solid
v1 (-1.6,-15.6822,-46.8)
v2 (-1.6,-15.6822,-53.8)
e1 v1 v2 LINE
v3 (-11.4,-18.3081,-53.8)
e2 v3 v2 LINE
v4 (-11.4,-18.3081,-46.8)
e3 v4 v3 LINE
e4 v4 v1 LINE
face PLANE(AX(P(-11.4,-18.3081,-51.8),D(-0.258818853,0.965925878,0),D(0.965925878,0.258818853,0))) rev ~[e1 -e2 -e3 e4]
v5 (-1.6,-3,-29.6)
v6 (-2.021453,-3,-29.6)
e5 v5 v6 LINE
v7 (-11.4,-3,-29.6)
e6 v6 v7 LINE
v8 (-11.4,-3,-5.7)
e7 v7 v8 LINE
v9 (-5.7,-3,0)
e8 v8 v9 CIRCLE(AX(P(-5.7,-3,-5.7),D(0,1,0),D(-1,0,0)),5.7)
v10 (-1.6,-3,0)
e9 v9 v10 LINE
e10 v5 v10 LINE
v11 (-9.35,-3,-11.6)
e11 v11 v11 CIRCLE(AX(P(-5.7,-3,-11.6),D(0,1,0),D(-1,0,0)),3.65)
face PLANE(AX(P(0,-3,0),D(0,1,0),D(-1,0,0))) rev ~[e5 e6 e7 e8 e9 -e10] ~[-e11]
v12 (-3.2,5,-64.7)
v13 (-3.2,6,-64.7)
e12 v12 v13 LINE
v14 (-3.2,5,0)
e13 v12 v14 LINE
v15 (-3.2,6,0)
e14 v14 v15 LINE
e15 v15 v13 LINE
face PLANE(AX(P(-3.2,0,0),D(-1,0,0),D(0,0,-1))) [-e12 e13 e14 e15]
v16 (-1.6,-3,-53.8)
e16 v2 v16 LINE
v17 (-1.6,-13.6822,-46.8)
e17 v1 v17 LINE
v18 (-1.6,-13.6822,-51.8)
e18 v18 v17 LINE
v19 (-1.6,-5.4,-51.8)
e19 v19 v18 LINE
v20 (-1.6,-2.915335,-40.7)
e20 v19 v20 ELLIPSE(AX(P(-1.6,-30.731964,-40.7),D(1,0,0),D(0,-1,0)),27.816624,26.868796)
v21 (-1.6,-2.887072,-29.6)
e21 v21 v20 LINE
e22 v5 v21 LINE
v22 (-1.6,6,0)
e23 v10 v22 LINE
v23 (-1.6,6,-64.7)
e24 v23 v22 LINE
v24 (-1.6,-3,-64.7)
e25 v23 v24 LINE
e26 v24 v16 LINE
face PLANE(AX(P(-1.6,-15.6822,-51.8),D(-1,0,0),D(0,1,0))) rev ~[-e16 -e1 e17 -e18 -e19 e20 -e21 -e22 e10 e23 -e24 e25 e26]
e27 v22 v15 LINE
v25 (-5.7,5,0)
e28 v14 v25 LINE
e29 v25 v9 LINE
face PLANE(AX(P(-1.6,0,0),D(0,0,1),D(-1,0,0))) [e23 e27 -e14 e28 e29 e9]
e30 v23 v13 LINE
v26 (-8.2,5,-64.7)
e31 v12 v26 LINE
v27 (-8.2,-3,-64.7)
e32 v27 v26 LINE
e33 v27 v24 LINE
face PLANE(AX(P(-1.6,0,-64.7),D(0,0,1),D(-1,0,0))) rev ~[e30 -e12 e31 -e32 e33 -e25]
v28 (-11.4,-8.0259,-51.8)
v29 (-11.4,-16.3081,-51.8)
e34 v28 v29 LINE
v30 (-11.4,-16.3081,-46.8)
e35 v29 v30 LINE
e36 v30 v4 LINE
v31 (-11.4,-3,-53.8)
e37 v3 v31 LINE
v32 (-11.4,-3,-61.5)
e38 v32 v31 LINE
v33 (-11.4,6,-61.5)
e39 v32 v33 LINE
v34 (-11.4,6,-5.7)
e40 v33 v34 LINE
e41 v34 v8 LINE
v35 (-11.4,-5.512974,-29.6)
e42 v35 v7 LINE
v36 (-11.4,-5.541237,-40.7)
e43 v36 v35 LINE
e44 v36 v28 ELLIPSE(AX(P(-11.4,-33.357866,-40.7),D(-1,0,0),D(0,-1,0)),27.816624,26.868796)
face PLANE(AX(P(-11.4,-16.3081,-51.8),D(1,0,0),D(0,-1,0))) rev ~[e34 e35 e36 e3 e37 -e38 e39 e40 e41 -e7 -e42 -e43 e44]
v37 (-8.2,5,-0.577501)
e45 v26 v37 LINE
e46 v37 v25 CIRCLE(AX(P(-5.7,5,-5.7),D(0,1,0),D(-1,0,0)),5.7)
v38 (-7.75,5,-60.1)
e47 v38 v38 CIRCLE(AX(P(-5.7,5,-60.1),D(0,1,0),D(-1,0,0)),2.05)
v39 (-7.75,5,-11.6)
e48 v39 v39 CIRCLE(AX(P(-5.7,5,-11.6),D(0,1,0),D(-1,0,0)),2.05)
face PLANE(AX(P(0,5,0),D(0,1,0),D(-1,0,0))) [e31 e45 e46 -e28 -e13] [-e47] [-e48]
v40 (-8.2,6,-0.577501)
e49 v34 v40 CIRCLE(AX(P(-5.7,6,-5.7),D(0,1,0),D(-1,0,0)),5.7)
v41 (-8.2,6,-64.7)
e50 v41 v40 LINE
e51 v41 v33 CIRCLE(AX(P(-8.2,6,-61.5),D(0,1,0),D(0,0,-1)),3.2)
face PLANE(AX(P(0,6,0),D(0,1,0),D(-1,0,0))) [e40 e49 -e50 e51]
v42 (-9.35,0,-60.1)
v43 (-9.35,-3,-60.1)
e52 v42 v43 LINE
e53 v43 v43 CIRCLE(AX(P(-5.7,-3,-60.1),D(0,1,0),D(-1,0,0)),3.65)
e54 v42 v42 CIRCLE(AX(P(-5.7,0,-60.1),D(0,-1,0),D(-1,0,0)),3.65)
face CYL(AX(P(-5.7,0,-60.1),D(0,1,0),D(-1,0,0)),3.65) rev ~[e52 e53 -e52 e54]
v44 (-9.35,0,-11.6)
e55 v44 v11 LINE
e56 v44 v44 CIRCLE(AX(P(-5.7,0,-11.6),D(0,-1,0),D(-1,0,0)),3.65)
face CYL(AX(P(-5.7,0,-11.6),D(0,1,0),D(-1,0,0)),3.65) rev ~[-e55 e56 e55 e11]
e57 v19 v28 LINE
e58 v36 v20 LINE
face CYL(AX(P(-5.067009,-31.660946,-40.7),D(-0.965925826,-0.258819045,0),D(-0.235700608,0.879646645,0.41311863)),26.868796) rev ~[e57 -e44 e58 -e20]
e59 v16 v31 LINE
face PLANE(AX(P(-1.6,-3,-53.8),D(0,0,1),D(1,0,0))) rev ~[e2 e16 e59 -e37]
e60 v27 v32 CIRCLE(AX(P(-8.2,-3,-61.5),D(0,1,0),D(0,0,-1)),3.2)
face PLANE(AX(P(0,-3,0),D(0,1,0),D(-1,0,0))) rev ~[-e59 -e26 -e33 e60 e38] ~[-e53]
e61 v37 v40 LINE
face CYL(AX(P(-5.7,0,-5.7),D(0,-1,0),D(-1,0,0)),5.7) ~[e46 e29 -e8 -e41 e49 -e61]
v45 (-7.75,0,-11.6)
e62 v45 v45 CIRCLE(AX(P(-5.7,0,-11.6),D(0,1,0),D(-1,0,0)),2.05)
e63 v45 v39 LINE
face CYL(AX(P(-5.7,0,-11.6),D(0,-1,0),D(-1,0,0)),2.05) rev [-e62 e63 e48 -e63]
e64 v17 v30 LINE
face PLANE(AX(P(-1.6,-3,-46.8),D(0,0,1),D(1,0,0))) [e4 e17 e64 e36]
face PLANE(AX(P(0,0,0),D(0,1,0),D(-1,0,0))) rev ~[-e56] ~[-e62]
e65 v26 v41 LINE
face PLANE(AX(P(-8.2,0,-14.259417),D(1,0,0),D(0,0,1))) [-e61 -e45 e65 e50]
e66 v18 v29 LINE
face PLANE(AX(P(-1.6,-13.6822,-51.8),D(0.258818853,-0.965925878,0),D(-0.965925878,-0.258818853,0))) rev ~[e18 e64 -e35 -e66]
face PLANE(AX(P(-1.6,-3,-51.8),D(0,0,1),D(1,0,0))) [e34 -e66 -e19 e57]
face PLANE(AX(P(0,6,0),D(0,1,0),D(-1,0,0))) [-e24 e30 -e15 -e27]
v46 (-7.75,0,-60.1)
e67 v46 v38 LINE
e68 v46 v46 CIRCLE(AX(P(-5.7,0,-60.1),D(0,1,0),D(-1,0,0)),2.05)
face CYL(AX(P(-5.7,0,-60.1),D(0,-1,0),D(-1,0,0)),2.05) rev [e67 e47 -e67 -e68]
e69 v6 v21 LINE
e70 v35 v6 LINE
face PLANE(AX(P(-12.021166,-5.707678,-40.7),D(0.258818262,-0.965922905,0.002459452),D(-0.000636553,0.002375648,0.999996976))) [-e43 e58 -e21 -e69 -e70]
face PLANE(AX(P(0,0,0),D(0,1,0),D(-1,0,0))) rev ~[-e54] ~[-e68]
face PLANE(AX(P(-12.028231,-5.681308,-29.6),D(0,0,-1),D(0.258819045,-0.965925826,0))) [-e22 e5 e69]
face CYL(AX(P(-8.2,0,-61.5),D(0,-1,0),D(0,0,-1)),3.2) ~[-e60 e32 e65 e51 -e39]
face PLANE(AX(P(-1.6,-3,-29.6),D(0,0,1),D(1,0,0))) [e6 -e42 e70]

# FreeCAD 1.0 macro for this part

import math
import FreeCAD as App
import Part
import Sketcher
Q = App.Units.Quantity

doc = App.newDocument("Part")
body = doc.addObject("PartDesign::Body", "Body")
body.AllowCompound = True

# Sketch on XZ plane
sketch1 = doc.addObject("Sketcher::SketchObject", "Sketch")
body.addObject(sketch1)
sketch1.AttachmentSupport = (doc.XZ_Plane, [""])
sketch1.MapMode = "FlatFace"
sketch1.addGeometry(Part.LineSegment(App.Vector(-3.2, 0, 0), App.Vector(-1.6, 0, 0)), False)
sketch1.addGeometry(Part.LineSegment(App.Vector(-1.6, 0, 0), App.Vector(-1.6, -64.7, 0)), False)
sketch1.addGeometry(Part.LineSegment(App.Vector(-1.6, -64.7, 0), App.Vector(-3.2, -64.7, 0)), False)
sketch1.addGeometry(Part.LineSegment(App.Vector(-3.2, -64.7, 0), App.Vector(-3.2, 0, 0)), False)
sketch1.addGeometry(Part.ArcOfCircle(Part.Circle(App.Vector(-8.2, -61.5, 0), App.Vector(0, 0, 1), 3.2), math.radians(180), math.radians(270)), False)
sketch1.addGeometry(Part.LineSegment(App.Vector(-11.4, -61.5, 0), App.Vector(-11.4, -5.7, 0)), False)
sketch1.addGeometry(Part.ArcOfCircle(Part.Circle(App.Vector(-5.7, -5.7, 0), App.Vector(0, 0, 1), 5.7), math.radians(116), math.radians(180)), False)
sketch1.addGeometry(Part.LineSegment(App.Vector(-8.2, -0.6, 0), App.Vector(-8.2, -64.7, 0)), False)
sketch1.addConstraint(Sketcher.Constraint("Coincident", 0, 2, 1, 1))
sketch1.addConstraint(Sketcher.Constraint("Coincident", 1, 2, 2, 1))
sketch1.addConstraint(Sketcher.Constraint("Coincident", 2, 2, 3, 1))
sketch1.addConstraint(Sketcher.Constraint("Coincident", 3, 2, 0, 1))
sketch1.addConstraint(Sketcher.Constraint("Tangent", 4, 1, 5, 1))
sketch1.addConstraint(Sketcher.Constraint("Tangent", 5, 2, 6, 2))
sketch1.addConstraint(Sketcher.Constraint("Coincident", 6, 1, 7, 1))
sketch1.addConstraint(Sketcher.Constraint("Coincident", 7, 2, 4, 2))
sketch1.addConstraint(Sketcher.Constraint("Horizontal", 0))
sketch1.addConstraint(Sketcher.Constraint("Vertical", 1))
sketch1.addConstraint(Sketcher.Constraint("Horizontal", 2))
sketch1.addConstraint(Sketcher.Constraint("Vertical", 3))
sketch1.addConstraint(Sketcher.Constraint("Vertical", 5))
sketch1.addConstraint(Sketcher.Constraint("Vertical", 7))
sketch1.addConstraint(Sketcher.Constraint("PointOnObject", 0, 2, -1))
sketch1.addConstraint(Sketcher.Constraint("Horizontal", 2, 2, 7, 2))
sketch1.addConstraint(Sketcher.Constraint("Vertical", 4, 3, 6, 1))
sketch1.addConstraint(Sketcher.Constraint("Radius", 4, 3.2))
sketch1.addConstraint(Sketcher.Constraint("DistanceX", 2, 2, -1, 1, 3.2))
sketch1.addConstraint(Sketcher.Constraint("Radius", 6, 5.7))
sketch1.addConstraint(Sketcher.Constraint("DistanceX", 6, 3, 0, 2, 4.1))
sketch1.addConstraint(Sketcher.Constraint("DistanceX", 0, 1, 0, 2, 1.6))
sketch1.addConstraint(Sketcher.Constraint("DistanceY", 1, 2, 1, 1, 64.7))
sketch1.addConstraint(Sketcher.Constraint("DistanceY", 5, 1, 5, 2, 55.8))
pad1 = doc.addObject("PartDesign::Pad", "Pad")
body.addObject(pad1)
pad1.Profile = sketch1
pad1.Length = 6
pad1.Reversed = True

# Sketch on XZ plane
sketch2 = doc.addObject("Sketcher::SketchObject", "Sketch001")
body.addObject(sketch2)
sketch2.AttachmentSupport = (doc.XZ_Plane, [""])
sketch2.MapMode = "FlatFace"
sketch2.addGeometry(Part.LineSegment(App.Vector(-5.7, 0, 0), App.Vector(-3.2, 0, 0)), False)
sketch2.addGeometry(Part.LineSegment(App.Vector(-3.2, 0, 0), App.Vector(-3.2, -64.7, 0)), False)
sketch2.addGeometry(Part.LineSegment(App.Vector(-3.2, -64.7, 0), App.Vector(-8.2, -64.7, 0)), False)
sketch2.addGeometry(Part.LineSegment(App.Vector(-8.2, -64.7, 0), App.Vector(-8.2, -0.6, 0)), False)
sketch2.addGeometry(Part.ArcOfCircle(Part.Circle(App.Vector(-5.7, -5.7, 0), App.Vector(0, 0, 1), 5.7), math.radians(90), math.radians(116)), False)
sketch2.addGeometry(Part.Circle(App.Vector(-5.7, -11.6, 0), App.Vector(0, 0, 1), 2), False)
sketch2.addGeometry(Part.Circle(App.Vector(-5.7, -60.1, 0), App.Vector(0, 0, 1), 2), False)
sketch2.addConstraint(Sketcher.Constraint("Coincident", 0, 2, 1, 1))
sketch2.addConstraint(Sketcher.Constraint("Coincident", 1, 2, 2, 1))
sketch2.addConstraint(Sketcher.Constraint("Coincident", 2, 2, 3, 1))
sketch2.addConstraint(Sketcher.Constraint("Coincident", 3, 2, 4, 2))
sketch2.addConstraint(Sketcher.Constraint("Tangent", 4, 1, 0, 1))
sketch2.addConstraint(Sketcher.Constraint("Horizontal", 0))
sketch2.addConstraint(Sketcher.Constraint("Vertical", 1))
sketch2.addConstraint(Sketcher.Constraint("Horizontal", 2))
sketch2.addConstraint(Sketcher.Constraint("Vertical", 3))
sketch2.addConstraint(Sketcher.Constraint("Equal", 5, 6))
sketch2.addConstraint(Sketcher.Constraint("PointOnObject", 0, 2, -1))
sketch2.addConstraint(Sketcher.Constraint("Vertical", 4, 3, 5, 3))
sketch2.addConstraint(Sketcher.Constraint("Vertical", 5, 3, 6, 3))
sketch2.addConstraint(Sketcher.Constraint("Diameter", 5, 4.1))
sketch2.addConstraint(Sketcher.Constraint("DistanceX", 0, 2, -1, 1, 3.2))
sketch2.addConstraint(Sketcher.Constraint("Radius", 4, 5.7))
sketch2.addConstraint(Sketcher.Constraint("DistanceY", 6, 3, 5, 3, 48.5))
sketch2.addConstraint(Sketcher.Constraint("DistanceX", 2, 2, 2, 1, 5.0))
sketch2.addConstraint(Sketcher.Constraint("DistanceX", 0, 1, 0, 2, 2.5))
sketch2.addConstraint(Sketcher.Constraint("DistanceY", 1, 2, 1, 1, 64.7))
sketch2.addConstraint(Sketcher.Constraint("DistanceY", 5, 3, -1, 1, 11.6))
pad2 = doc.addObject("PartDesign::Pad", "Pad001")
body.addObject(pad2)
pad2.Profile = sketch2
pad2.Length = 5
pad2.Reversed = True

# Sketch on XZ plane
sketch3 = doc.addObject("Sketcher::SketchObject", "Sketch002")
body.addObject(sketch3)
sketch3.AttachmentSupport = (doc.XZ_Plane, [""])
sketch3.MapMode = "FlatFace"
sketch3.addGeometry(Part.LineSegment(App.Vector(-5.7, 0, 0), App.Vector(-1.6, 0, 0)), False)
sketch3.addGeometry(Part.LineSegment(App.Vector(-1.6, 0, 0), App.Vector(-1.6, -64.7, 0)), False)
sketch3.addGeometry(Part.LineSegment(App.Vector(-1.6, -64.7, 0), App.Vector(-8.2, -64.7, 0)), False)
sketch3.addGeometry(Part.ArcOfCircle(Part.Circle(App.Vector(-8.2, -61.5, 0), App.Vector(0, 0, 1), 3.2), math.radians(180), math.radians(270)), False)
sketch3.addGeometry(Part.LineSegment(App.Vector(-11.4, -61.5, 0), App.Vector(-11.4, -5.7, 0)), False)
sketch3.addGeometry(Part.ArcOfCircle(Part.Circle(App.Vector(-5.7, -5.7, 0), App.Vector(0, 0, 1), 5.7), math.radians(90), math.radians(180)), False)
sketch3.addGeometry(Part.Circle(App.Vector(-5.7, -11.6, 0), App.Vector(0, 0, 1), 3.6), False)
sketch3.addGeometry(Part.Circle(App.Vector(-5.7, -60.1, 0), App.Vector(0, 0, 1), 3.6), False)
sketch3.addConstraint(Sketcher.Constraint("Coincident", 0, 2, 1, 1))
sketch3.addConstraint(Sketcher.Constraint("Coincident", 1, 2, 2, 1))
sketch3.addConstraint(Sketcher.Constraint("Tangent", 2, 2, 3, 2))
sketch3.addConstraint(Sketcher.Constraint("Tangent", 3, 1, 4, 1))
sketch3.addConstraint(Sketcher.Constraint("Tangent", 4, 2, 5, 2))
sketch3.addConstraint(Sketcher.Constraint("Tangent", 5, 1, 0, 1))
sketch3.addConstraint(Sketcher.Constraint("Horizontal", 0))
sketch3.addConstraint(Sketcher.Constraint("Vertical", 1))
sketch3.addConstraint(Sketcher.Constraint("Horizontal", 2))
sketch3.addConstraint(Sketcher.Constraint("Vertical", 4))
sketch3.addConstraint(Sketcher.Constraint("Equal", 6, 7))
sketch3.addConstraint(Sketcher.Constraint("PointOnObject", 0, 2, -1))
sketch3.addConstraint(Sketcher.Constraint("Vertical", 5, 3, 6, 3))
sketch3.addConstraint(Sketcher.Constraint("Vertical", 6, 3, 7, 3))
sketch3.addConstraint(Sketcher.Constraint("Diameter", 6, 7.3))
sketch3.addConstraint(Sketcher.Constraint("Radius", 3, 3.2))
sketch3.addConstraint(Sketcher.Constraint("DistanceX", 0, 1, 0, 2, 4.1))
sketch3.addConstraint(Sketcher.Constraint("Radius", 5, 5.7))
sketch3.addConstraint(Sketcher.Constraint("DistanceY", 7, 3, 6, 3, 48.5))
sketch3.addConstraint(Sketcher.Constraint("DistanceY", 1, 2, 1, 1, 64.7))
sketch3.addConstraint(Sketcher.Constraint("DistanceX", 3, 3, -1, 1, 8.2))
sketch3.addConstraint(Sketcher.Constraint("DistanceY", 6, 3, -1, 1, 11.6))
pad3 = doc.addObject("PartDesign::Pad", "Pad002")
body.addObject(pad3)
pad3.Profile = sketch3
pad3.Length = 3

# Sketch on XY plane
sketch4 = doc.addObject("Sketcher::SketchObject", "Sketch003")
body.addObject(sketch4)
sketch4.AttachmentSupport = (doc.XY_Plane, [""])
sketch4.MapMode = "FlatFace"
sketch4.AttachmentOffset = App.Placement(App.Vector(0, 0, -51.8), App.Rotation())
sketch4.addGeometry(Part.LineSegment(App.Vector(-2, -3, 0), App.Vector(-11, -3, 0)), False)
sketch4.addGeometry(Part.LineSegment(App.Vector(-11, -3, 0), App.Vector(-11, -18, 0)), False)
sketch4.addGeometry(Part.LineSegment(App.Vector(-11, -18, 0), App.Vector(-2, -16, 0)), False)
sketch4.addGeometry(Part.LineSegment(App.Vector(-2, -16, 0), App.Vector(-2, -3, 0)), False)
sketch4.addConstraint(Sketcher.Constraint("Coincident", 0, 2, 1, 1))
sketch4.addConstraint(Sketcher.Constraint("Coincident", 1, 2, 2, 1))
sketch4.addConstraint(Sketcher.Constraint("Coincident", 2, 2, 3, 1))
sketch4.addConstraint(Sketcher.Constraint("Coincident", 3, 2, 0, 1))
sketch4.addConstraint(Sketcher.Constraint("Horizontal", 0))
sketch4.addConstraint(Sketcher.Constraint("Vertical", 1))
sketch4.addConstraint(Sketcher.Constraint("Vertical", 3))
sketch4.addConstraint(Sketcher.Constraint("Angle", 2, Q("15 deg")))
sketch4.addConstraint(Sketcher.Constraint("DistanceX", 0, 2, 0, 1, 9.8))
sketch4.addConstraint(Sketcher.Constraint("DistanceY", 0, 2, -1, 1, 3.0))
sketch4.addConstraint(Sketcher.Constraint("DistanceX", 0, 2, -1, 1, 11.4))
sketch4.addConstraint(Sketcher.Constraint("DistanceY", 1, 2, 1, 1, 15.308))
pad4 = doc.addObject("PartDesign::Pad", "Pad003")
body.addObject(pad4)
pad4.Profile = sketch4
pad4.Length = 2
pad4.Reversed = True

# Sketch on XY plane
sketch5 = doc.addObject("Sketcher::SketchObject", "Sketch004")
body.addObject(sketch5)
sketch5.AttachmentSupport = (doc.XY_Plane, [""])
sketch5.MapMode = "FlatFace"
sketch5.AttachmentOffset = App.Placement(App.Vector(0, 0, -51.8), App.Rotation())
sketch5.addGeometry(Part.LineSegment(App.Vector(-1.6, -5.4, 0), App.Vector(-1.6, -3, 0)), False)
sketch5.addGeometry(Part.LineSegment(App.Vector(-1.6, -3, 0), App.Vector(-11.4, -3, 0)), False)
sketch5.addGeometry(Part.LineSegment(App.Vector(-11.4, -3, 0), App.Vector(-11.4, -8, 0)), False)
sketch5.addGeometry(Part.LineSegment(App.Vector(-11.4, -8, 0), App.Vector(-1.6, -5.4, 0)), False)
sketch5.addConstraint(Sketcher.Constraint("Coincident", 0, 2, 1, 1))
sketch5.addConstraint(Sketcher.Constraint("Coincident", 1, 2, 2, 1))
sketch5.addConstraint(Sketcher.Constraint("Coincident", 2, 2, 3, 1))
sketch5.addConstraint(Sketcher.Constraint("Coincident", 3, 2, 0, 1))
sketch5.addConstraint(Sketcher.Constraint("Vertical", 0))
sketch5.addConstraint(Sketcher.Constraint("Horizontal", 1))
sketch5.addConstraint(Sketcher.Constraint("Vertical", 2))
sketch5.addConstraint(Sketcher.Constraint("Angle", 3, Q("15 deg")))
sketch5.addConstraint(Sketcher.Constraint("DistanceX", 1, 2, 1, 1, 9.8))
sketch5.addConstraint(Sketcher.Constraint("DistanceY", 0, 1, 0, 2, 2.4))
sketch5.addConstraint(Sketcher.Constraint("DistanceY", 0, 2, -1, 1, 3.0))
sketch5.addConstraint(Sketcher.Constraint("DistanceX", 0, 2, -1, 1, 1.6))
pad5 = doc.addObject("PartDesign::Pad", "Pad004")
body.addObject(pad5)
pad5.Profile = sketch5
pad5.Length = 22.2

# Sketch on an angled plane
sketch6 = doc.addObject("Sketcher::SketchObject", "Sketch005")
body.addObject(sketch6)
sketch6.Placement = App.Placement(App.Vector(-11.4, -8.0259, -51.8), App.Rotation(App.Vector(0.258819045, -0.965925826, 0), App.Vector(0, 0, 0.999999999), App.Vector(-0.965925826, -0.258819045, 0), "ZXY"))
sketch6.addGeometry(Part.ArcOfCircle(Part.Circle(App.Vector(24.5, 11.1, 0), App.Vector(0, 0, 1), 26.9), math.radians(180), math.radians(204)), False)
sketch6.addGeometry(Part.LineSegment(App.Vector(0, 0, 0), App.Vector(0, 22.2, 0)), False)
sketch6.addGeometry(Part.LineSegment(App.Vector(0, 22.2, 0), App.Vector(-2.4, 22.2, 0)), False)
sketch6.addGeometry(Part.LineSegment(App.Vector(-2.4, 22.2, 0), App.Vector(-2.4, 11.1, 0)), False)
sketch6.addConstraint(Sketcher.Constraint("Coincident", 0, 2, 1, 1))
sketch6.addConstraint(Sketcher.Constraint("Coincident", 1, 2, 2, 1))
sketch6.addConstraint(Sketcher.Constraint("Coincident", 2, 2, 3, 1))
sketch6.addConstraint(Sketcher.Constraint("Coincident", 3, 2, 0, 1))
sketch6.addConstraint(Sketcher.Constraint("Vertical", 1))
sketch6.addConstraint(Sketcher.Constraint("Horizontal", 2))
sketch6.addConstraint(Sketcher.Constraint("Coincident", 0, 2, -1, 1))
sketch6.addConstraint(Sketcher.Constraint("Horizontal", 0, 3, 3, 2))
sketch6.addConstraint(Sketcher.Constraint("DistanceX", 3, 2, -1, 1, 2.4))
sketch6.addConstraint(Sketcher.Constraint("DistanceY", 1, 1, 1, 2, 22.2))
sketch6.addConstraint(Sketcher.Constraint("Distance", 3, 11.1))
sketch6.addConstraint(Sketcher.Constraint("Angle", 3, Q("-89.859 deg")))
pocket1 = doc.addObject("PartDesign::Pocket", "Pocket")
body.addObject(pocket1)
pocket1.Profile = sketch6
pocket1.Type = "ThroughAll"

# Sketch on XY plane
sketch7 = doc.addObject("Sketcher::SketchObject", "Sketch006")
body.addObject(sketch7)
sketch7.AttachmentSupport = (doc.XY_Plane, [""])
sketch7.MapMode = "FlatFace"
sketch7.AttachmentOffset = App.Placement(App.Vector(0, 0, -51.8), App.Rotation())
sketch7.addGeometry(Part.LineSegment(App.Vector(-1.6, -15.7, 0), App.Vector(-1.6, -13.7, 0)), False)
sketch7.addGeometry(Part.LineSegment(App.Vector(-1.6, -13.7, 0), App.Vector(-11.4, -16.3, 0)), False)
sketch7.addGeometry(Part.LineSegment(App.Vector(-11.4, -16.3, 0), App.Vector(-11.4, -18.3, 0)), False)
sketch7.addGeometry(Part.LineSegment(App.Vector(-11.4, -18.3, 0), App.Vector(-1.6, -15.7, 0)), False)
sketch7.addConstraint(Sketcher.Constraint("Coincident", 0, 2, 1, 1))
sketch7.addConstraint(Sketcher.Constraint("Coincident", 1, 2, 2, 1))
sketch7.addConstraint(Sketcher.Constraint("Coincident", 2, 2, 3, 1))
sketch7.addConstraint(Sketcher.Constraint("Coincident", 3, 2, 0, 1))
sketch7.addConstraint(Sketcher.Constraint("Vertical", 0))
sketch7.addConstraint(Sketcher.Constraint("Vertical", 2))
sketch7.addConstraint(Sketcher.Constraint("Parallel", 1, 3))
sketch7.addConstraint(Sketcher.Constraint("DistanceY", 0, 1, 0, 2, 2.0))
sketch7.addConstraint(Sketcher.Constraint("Angle", 3, Q("15 deg")))
sketch7.addConstraint(Sketcher.Constraint("DistanceX", 1, 2, 0, 2, 9.8))
sketch7.addConstraint(Sketcher.Constraint("DistanceX", 0, 2, -1, 1, 1.6))
sketch7.addConstraint(Sketcher.Constraint("DistanceY", 1, 2, -1, 1, 16.308))
pad6 = doc.addObject("PartDesign::Pad", "Pad005")
body.addObject(pad6)
pad6.Profile = sketch7
pad6.Length = 5

doc.recompute()
